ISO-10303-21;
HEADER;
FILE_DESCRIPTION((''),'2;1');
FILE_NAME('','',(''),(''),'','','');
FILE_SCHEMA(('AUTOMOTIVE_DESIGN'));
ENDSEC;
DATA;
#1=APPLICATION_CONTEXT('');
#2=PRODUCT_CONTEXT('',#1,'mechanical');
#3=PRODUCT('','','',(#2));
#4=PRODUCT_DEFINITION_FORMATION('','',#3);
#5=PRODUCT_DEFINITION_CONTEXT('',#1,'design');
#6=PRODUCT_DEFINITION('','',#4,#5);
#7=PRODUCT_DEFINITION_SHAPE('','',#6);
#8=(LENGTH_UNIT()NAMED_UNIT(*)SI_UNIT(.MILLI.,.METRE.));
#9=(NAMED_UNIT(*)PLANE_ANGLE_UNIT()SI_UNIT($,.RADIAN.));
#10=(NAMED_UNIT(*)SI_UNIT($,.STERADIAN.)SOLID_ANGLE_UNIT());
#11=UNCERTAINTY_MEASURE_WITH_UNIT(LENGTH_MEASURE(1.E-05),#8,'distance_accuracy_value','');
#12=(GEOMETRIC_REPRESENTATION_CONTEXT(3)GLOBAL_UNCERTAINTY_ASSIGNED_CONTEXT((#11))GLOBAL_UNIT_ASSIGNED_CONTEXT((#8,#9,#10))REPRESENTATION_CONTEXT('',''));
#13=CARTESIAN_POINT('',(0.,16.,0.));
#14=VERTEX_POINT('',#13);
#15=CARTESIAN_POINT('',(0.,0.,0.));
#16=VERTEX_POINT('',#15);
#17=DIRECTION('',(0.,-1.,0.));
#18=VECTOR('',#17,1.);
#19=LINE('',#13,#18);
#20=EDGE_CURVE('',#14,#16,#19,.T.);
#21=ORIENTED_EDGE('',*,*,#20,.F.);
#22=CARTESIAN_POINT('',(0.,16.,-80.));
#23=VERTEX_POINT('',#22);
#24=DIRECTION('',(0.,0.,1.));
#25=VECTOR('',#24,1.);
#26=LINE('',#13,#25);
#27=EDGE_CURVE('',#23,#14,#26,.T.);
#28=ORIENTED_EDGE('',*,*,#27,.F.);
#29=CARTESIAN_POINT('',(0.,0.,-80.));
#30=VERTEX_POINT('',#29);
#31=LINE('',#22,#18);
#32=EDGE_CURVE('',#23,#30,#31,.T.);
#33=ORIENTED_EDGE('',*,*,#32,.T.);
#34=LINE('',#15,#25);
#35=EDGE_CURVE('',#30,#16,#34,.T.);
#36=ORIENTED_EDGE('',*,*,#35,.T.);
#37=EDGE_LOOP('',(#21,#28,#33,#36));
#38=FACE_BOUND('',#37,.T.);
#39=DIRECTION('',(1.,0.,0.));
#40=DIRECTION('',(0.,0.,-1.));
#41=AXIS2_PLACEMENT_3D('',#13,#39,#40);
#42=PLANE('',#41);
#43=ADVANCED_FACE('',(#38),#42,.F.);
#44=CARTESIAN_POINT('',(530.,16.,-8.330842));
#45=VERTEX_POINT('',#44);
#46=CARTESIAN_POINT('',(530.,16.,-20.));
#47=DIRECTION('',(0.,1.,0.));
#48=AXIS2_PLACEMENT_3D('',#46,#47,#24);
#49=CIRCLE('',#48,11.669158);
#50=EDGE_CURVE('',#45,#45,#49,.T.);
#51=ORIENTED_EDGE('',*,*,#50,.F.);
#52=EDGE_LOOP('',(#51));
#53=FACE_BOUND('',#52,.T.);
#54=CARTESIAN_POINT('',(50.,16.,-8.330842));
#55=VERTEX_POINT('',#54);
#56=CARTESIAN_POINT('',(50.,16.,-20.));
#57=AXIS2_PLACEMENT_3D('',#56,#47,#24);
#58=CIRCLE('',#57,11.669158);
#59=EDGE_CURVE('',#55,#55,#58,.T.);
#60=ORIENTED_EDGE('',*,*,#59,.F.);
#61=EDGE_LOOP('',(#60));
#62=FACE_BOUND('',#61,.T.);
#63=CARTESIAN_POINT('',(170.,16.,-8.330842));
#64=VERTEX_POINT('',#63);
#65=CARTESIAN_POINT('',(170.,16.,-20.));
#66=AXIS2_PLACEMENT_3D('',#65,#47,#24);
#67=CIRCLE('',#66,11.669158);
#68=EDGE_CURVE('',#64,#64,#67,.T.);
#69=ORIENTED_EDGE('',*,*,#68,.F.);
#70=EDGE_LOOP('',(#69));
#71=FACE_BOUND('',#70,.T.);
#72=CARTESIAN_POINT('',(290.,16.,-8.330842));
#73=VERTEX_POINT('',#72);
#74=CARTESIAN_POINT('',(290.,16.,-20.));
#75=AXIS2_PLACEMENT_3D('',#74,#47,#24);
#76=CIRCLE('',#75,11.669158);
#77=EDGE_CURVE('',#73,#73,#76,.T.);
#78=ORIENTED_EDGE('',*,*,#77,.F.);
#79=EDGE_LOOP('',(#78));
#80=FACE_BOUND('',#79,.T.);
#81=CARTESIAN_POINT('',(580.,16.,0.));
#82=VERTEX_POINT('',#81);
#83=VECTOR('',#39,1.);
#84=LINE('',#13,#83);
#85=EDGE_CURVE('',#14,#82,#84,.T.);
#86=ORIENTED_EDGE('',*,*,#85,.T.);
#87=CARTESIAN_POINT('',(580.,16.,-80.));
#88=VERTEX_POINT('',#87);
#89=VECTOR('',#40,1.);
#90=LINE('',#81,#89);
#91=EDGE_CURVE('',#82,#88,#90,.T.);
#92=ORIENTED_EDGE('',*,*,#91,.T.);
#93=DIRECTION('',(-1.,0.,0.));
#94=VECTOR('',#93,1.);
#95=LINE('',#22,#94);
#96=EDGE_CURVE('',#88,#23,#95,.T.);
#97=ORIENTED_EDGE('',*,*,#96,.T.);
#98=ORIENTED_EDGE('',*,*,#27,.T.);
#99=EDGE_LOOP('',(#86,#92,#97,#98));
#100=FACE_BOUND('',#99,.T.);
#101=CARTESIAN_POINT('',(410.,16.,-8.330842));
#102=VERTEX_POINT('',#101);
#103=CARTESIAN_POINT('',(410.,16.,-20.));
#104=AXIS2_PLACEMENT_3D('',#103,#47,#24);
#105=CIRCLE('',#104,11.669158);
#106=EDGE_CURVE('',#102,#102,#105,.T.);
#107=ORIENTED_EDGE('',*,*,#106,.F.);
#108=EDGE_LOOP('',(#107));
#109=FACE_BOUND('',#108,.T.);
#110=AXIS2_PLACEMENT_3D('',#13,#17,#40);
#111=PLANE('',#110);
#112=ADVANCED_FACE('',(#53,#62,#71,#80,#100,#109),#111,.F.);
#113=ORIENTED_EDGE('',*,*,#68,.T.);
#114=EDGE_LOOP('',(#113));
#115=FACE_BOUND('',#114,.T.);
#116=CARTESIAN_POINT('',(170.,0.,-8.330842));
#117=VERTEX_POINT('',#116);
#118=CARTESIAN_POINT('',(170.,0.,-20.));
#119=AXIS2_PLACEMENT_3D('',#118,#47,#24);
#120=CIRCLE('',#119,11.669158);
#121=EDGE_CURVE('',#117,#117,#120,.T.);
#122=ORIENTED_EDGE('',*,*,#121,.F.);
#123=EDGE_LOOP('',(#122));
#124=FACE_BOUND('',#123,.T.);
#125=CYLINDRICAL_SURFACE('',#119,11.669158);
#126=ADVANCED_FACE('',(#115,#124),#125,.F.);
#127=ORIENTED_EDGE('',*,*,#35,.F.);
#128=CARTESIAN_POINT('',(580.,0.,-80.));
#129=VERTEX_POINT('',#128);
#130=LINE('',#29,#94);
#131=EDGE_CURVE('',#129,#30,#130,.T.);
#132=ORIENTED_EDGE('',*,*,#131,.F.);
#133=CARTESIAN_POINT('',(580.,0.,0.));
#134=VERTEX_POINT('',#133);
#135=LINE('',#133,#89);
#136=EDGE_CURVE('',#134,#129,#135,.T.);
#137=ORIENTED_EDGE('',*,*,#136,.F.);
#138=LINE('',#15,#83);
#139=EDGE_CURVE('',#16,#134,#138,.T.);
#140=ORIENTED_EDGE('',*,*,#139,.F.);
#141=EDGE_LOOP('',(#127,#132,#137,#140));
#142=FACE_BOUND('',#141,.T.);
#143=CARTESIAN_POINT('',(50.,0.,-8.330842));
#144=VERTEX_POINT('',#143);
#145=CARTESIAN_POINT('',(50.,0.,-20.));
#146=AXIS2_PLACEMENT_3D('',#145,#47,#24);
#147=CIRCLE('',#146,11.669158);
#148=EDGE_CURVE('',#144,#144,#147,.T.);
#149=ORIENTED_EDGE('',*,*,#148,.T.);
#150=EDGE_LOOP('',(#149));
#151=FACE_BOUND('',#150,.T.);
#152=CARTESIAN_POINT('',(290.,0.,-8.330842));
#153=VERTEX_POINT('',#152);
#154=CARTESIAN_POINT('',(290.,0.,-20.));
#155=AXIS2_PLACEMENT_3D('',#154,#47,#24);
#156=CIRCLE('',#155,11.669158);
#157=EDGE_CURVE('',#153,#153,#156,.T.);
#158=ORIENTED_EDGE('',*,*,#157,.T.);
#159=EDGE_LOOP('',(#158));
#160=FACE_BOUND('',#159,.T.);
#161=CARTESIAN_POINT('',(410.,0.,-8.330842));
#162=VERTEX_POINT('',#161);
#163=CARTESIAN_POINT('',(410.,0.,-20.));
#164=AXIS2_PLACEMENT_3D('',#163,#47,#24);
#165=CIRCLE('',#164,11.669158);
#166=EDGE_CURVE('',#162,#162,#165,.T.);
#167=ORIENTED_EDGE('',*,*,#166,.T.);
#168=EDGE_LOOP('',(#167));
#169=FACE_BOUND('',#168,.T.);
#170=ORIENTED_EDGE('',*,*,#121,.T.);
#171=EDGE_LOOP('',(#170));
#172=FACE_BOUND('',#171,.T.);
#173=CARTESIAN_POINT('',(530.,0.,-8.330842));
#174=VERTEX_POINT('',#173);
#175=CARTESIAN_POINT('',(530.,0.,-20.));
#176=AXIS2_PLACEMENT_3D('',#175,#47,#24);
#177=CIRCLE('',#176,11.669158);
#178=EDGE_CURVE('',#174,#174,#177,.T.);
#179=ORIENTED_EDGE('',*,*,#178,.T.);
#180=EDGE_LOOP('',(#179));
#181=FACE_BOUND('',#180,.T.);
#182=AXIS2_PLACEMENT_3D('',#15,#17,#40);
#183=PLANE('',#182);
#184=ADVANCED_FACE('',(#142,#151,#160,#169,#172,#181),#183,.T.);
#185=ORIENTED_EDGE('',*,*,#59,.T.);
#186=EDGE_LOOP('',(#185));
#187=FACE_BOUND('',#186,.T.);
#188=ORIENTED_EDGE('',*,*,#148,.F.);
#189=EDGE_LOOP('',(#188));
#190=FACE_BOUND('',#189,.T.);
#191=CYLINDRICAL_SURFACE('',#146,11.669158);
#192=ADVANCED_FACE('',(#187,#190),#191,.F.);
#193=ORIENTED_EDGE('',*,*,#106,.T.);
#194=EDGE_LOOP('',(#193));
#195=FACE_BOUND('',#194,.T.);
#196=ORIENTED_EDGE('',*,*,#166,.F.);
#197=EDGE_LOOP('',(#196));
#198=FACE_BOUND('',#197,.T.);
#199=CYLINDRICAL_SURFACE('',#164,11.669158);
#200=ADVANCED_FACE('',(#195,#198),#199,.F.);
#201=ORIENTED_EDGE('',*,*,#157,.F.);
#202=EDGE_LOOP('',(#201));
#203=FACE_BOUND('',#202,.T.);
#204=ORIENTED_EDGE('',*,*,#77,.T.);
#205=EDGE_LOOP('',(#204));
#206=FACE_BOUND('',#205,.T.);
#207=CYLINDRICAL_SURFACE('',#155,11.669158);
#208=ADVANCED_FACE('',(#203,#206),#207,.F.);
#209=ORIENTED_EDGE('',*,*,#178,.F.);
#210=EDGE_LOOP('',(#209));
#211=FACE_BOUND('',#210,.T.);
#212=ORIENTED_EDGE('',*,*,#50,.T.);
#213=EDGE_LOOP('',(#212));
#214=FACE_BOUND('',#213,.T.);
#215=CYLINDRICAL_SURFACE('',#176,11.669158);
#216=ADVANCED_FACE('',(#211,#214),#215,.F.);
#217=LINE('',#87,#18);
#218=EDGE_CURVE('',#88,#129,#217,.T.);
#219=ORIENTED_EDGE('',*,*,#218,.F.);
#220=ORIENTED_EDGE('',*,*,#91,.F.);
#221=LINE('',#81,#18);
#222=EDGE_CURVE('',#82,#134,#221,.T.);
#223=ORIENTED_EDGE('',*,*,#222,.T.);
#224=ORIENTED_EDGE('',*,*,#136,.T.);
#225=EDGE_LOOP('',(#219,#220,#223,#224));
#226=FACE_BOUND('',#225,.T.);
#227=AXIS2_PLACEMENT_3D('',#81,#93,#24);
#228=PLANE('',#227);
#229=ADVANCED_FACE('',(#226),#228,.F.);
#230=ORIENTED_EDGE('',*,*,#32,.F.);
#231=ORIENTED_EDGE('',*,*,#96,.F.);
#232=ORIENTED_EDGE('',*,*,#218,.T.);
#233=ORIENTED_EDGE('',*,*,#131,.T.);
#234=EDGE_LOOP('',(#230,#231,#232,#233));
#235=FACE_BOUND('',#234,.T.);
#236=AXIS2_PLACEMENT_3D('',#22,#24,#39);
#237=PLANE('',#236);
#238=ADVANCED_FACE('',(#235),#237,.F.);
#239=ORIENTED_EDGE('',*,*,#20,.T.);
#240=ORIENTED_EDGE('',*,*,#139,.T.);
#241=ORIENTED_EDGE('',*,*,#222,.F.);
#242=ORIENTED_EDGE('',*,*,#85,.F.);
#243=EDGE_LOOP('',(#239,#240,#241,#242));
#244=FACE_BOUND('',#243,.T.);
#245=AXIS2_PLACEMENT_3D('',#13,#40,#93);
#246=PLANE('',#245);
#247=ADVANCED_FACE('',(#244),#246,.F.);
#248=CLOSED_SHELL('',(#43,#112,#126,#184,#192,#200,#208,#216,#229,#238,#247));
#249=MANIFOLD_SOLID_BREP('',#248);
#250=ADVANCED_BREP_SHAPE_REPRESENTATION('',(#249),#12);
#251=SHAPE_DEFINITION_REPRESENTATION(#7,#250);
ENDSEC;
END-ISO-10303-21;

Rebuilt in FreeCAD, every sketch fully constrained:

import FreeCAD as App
import Part
import Sketcher

V = App.Vector


def add_polygon(sketch, points):
    """Adds a closed chain of lines whose ends are joined by coincident constraints."""
    first, n = sketch.GeometryCount, len(points)
    for a, b in zip(points, points[1:] + points[:1]):
        sketch.addGeometry(Part.LineSegment(App.Vector(*a, 0), App.Vector(*b, 0)), False)
    for i in range(n):
        sketch.addConstraint(Sketcher.Constraint("Coincident", first + i, 2, first + (i + 1) % n, 1))

doc = App.newDocument("Part")
params = doc.addObject("Spreadsheet::Sheet", "Params")
for row, (alias, value) in enumerate([
    ("sketch1_width", "580 mm"),
    ("sketch1_height", "80 mm"),
    ("pad1_length", "16 mm"),
    ("pocket1_length", "16 mm"),
], start=1):
    params.set(f"A{row}", alias)
    params.set(f"B{row}", "=" + value)
    params.setAlias(f"B{row}", alias)

body = doc.addObject("PartDesign::Body", "Body")

sketch1 = body.newObject("Sketcher::SketchObject", "Sketch")
sketch1.AttachmentSupport = (doc.getObject("XZ_Plane"), [""])
sketch1.MapMode = "FlatFace"
add_polygon(sketch1, [(0, -80), (0, 0), (580, 0), (580, -80)])
sketch1.addConstraint([
    Sketcher.Constraint("Vertical", 0),
    Sketcher.Constraint("Horizontal", 1),
    Sketcher.Constraint("Vertical", 2),
    Sketcher.Constraint("Horizontal", 3),
    Sketcher.Constraint("Coincident", 0, 2, -1, 1),
    Sketcher.Constraint("DistanceX", 1, 1, 1, 2, 580.0),
    Sketcher.Constraint("DistanceY", 0, 1, 0, 2, 80.0),
])
sketch1.setExpression("Constraints[9]", "Params.sketch1_width")
sketch1.setExpression("Constraints[10]", "Params.sketch1_height")
pad1 = body.newObject("PartDesign::Pad", "Pad")
pad1.Profile = sketch1
pad1.setExpression("Length", "Params.pad1_length")
pad1.Reversed = True

sketch2 = body.newObject("Sketcher::SketchObject", "Sketch001")
sketch2.AttachmentSupport = (doc.getObject("XZ_Plane"), [""])
sketch2.MapMode = "FlatFace"
sketch2.AttachmentOffset = App.Placement(V(0, 0, -16), App.Rotation())
sketch2.addGeometry([
    Part.Circle(V(50, -20, 0), V(0, 0, 1), 12),
    Part.Circle(V(170, -20, 0), V(0, 0, 1), 12),
    Part.Circle(V(290, -20, 0), V(0, 0, 1), 12),
    Part.Circle(V(410, -20, 0), V(0, 0, 1), 12),
    Part.Circle(V(530, -20, 0), V(0, 0, 1), 12),
], False)
sketch2.addConstraint([
    Sketcher.Constraint("Equal", 0, 1),
    Sketcher.Constraint("Equal", 1, 2),
    Sketcher.Constraint("Equal", 2, 3),
    Sketcher.Constraint("Equal", 3, 4),
    Sketcher.Constraint("Horizontal", 0, 3, 1, 3),
    Sketcher.Constraint("Horizontal", 1, 3, 2, 3),
    Sketcher.Constraint("Horizontal", 2, 3, 3, 3),
    Sketcher.Constraint("Horizontal", 3, 3, 4, 3),
    Sketcher.Constraint("DistanceX", -1, 1, 0, 3, 50.0),
    Sketcher.Constraint("DistanceY", 0, 3, -1, 1, 20.0),
    Sketcher.Constraint("DistanceX", -1, 1, 1, 3, 170.0),
    Sketcher.Constraint("DistanceX", -1, 1, 2, 3, 290.0),
    Sketcher.Constraint("DistanceX", -1, 1, 3, 3, 410.0),
    Sketcher.Constraint("DistanceX", -1, 1, 4, 3, 530.0),
    Sketcher.Constraint("Diameter", 0, 23.338315),
])
pocket1 = body.newObject("PartDesign::Pocket", "Pocket")
pocket1.Profile = sketch2
pocket1.setExpression("Length", "Params.pocket1_length")
pocket1.Reversed = True

doc.recompute()
